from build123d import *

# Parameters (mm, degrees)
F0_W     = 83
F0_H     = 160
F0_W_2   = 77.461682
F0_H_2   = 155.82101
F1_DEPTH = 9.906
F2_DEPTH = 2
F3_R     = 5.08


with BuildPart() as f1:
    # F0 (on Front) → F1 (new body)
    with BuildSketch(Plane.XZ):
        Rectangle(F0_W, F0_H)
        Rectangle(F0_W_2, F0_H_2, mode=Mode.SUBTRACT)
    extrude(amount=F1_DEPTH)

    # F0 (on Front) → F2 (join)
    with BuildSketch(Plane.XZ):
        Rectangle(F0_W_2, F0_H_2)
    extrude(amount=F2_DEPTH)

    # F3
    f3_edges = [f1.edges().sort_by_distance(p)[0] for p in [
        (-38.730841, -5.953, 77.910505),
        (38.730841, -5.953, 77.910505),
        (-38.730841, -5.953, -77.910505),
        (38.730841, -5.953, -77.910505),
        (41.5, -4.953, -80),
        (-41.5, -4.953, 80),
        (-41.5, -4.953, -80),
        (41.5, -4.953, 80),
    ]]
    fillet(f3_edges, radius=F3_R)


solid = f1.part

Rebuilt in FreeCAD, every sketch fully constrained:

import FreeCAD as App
import Part
import Sketcher

V = App.Vector


def edges_at(feature, points):
    """Names of the edges that pass closest to the given points."""
    edges = feature.Shape.Edges
    near = lambda p: min(range(len(edges)), key=lambda i: edges[i].distToShape(Part.Vertex(*p))[0])
    return sorted({f"Edge{near(p) + 1}" for p in points})


def add_polygon(sketch, points):
    """Adds a closed chain of lines whose ends are joined by coincident constraints."""
    first, n = sketch.GeometryCount, len(points)
    for a, b in zip(points, points[1:] + points[:1]):
        sketch.addGeometry(Part.LineSegment(App.Vector(*a, 0), App.Vector(*b, 0)), False)
    for i in range(n):
        sketch.addConstraint(Sketcher.Constraint("Coincident", first + i, 2, first + (i + 1) % n, 1))

doc = App.newDocument("Part")
body = doc.addObject("PartDesign::Body", "Body")

# Sketch on XZ plane
sketch1 = doc.addObject("Sketcher::SketchObject", "Sketch")
body.addObject(sketch1)
sketch1.AttachmentSupport = (doc.XZ_Plane, [""])
sketch1.MapMode = "FlatFace"
add_polygon(sketch1, [(-42, 80), (-42, -80), (42, -80), (42, 80)])  # lines 0-3
add_polygon(sketch1, [(39, -78), (-39, -78), (-39, 78), (39, 78)])  # lines 4-7
sketch1.addConstraint([
    Sketcher.Constraint("Vertical", 0),
    Sketcher.Constraint("Horizontal", 1),
    Sketcher.Constraint("Vertical", 2),
    Sketcher.Constraint("Horizontal", 3),
    Sketcher.Constraint("Horizontal", 4),
    Sketcher.Constraint("Vertical", 5),
    Sketcher.Constraint("Horizontal", 6),
    Sketcher.Constraint("Vertical", 7),
    Sketcher.Constraint("Symmetric", 0, 2, 2, 2, -1, 1),
    Sketcher.Constraint("Symmetric", 4, 2, 6, 2, -1, 1),
    Sketcher.Constraint("DistanceX", 1, 1, 1, 2, 83.0),
    Sketcher.Constraint("DistanceY", 0, 2, 0, 1, 160.0),
    Sketcher.Constraint("DistanceX", 4, 2, 4, 1, 77.461682),
    Sketcher.Constraint("DistanceY", 5, 1, 5, 2, 155.82101),
])
pad1 = doc.addObject("PartDesign::Pad", "Pad")
body.addObject(pad1)
pad1.Profile = sketch1
pad1.Length = 9.906

# Sketch on XZ plane
sketch2 = doc.addObject("Sketcher::SketchObject", "Sketch001")
body.addObject(sketch2)
sketch2.AttachmentSupport = (doc.XZ_Plane, [""])
sketch2.MapMode = "FlatFace"
add_polygon(sketch2, [(-39, 78), (-39, -78), (39, -78), (39, 78)])  # lines 0-3
sketch2.addConstraint([
    Sketcher.Constraint("Vertical", 0),
    Sketcher.Constraint("Horizontal", 1),
    Sketcher.Constraint("Vertical", 2),
    Sketcher.Constraint("Horizontal", 3),
    Sketcher.Constraint("Symmetric", 0, 2, 2, 2, -1, 1),
    Sketcher.Constraint("DistanceX", 1, 1, 1, 2, 77.461682),
    Sketcher.Constraint("DistanceY", 0, 2, 0, 1, 155.82101),
])
pad2 = doc.addObject("PartDesign::Pad", "Pad001")
body.addObject(pad2)
pad2.Profile = sketch2
pad2.Length = 2
doc.recompute()

fillet = doc.addObject("PartDesign::Fillet", "Fillet")
body.addObject(fillet)
fillet.Base = (pad2, edges_at(pad2, [
    (-38.731, -5.953, 77.911),
    (38.731, -5.953, 77.911),
    (-38.731, -5.953, -77.911),
    (38.731, -5.953, -77.911),
    (41.5, -4.953, -80),
    (-41.5, -4.953, 80),
    (-41.5, -4.953, -80),
    (41.5, -4.953, 80),
]))
fillet.Radius = 5.08

doc.recompute()
